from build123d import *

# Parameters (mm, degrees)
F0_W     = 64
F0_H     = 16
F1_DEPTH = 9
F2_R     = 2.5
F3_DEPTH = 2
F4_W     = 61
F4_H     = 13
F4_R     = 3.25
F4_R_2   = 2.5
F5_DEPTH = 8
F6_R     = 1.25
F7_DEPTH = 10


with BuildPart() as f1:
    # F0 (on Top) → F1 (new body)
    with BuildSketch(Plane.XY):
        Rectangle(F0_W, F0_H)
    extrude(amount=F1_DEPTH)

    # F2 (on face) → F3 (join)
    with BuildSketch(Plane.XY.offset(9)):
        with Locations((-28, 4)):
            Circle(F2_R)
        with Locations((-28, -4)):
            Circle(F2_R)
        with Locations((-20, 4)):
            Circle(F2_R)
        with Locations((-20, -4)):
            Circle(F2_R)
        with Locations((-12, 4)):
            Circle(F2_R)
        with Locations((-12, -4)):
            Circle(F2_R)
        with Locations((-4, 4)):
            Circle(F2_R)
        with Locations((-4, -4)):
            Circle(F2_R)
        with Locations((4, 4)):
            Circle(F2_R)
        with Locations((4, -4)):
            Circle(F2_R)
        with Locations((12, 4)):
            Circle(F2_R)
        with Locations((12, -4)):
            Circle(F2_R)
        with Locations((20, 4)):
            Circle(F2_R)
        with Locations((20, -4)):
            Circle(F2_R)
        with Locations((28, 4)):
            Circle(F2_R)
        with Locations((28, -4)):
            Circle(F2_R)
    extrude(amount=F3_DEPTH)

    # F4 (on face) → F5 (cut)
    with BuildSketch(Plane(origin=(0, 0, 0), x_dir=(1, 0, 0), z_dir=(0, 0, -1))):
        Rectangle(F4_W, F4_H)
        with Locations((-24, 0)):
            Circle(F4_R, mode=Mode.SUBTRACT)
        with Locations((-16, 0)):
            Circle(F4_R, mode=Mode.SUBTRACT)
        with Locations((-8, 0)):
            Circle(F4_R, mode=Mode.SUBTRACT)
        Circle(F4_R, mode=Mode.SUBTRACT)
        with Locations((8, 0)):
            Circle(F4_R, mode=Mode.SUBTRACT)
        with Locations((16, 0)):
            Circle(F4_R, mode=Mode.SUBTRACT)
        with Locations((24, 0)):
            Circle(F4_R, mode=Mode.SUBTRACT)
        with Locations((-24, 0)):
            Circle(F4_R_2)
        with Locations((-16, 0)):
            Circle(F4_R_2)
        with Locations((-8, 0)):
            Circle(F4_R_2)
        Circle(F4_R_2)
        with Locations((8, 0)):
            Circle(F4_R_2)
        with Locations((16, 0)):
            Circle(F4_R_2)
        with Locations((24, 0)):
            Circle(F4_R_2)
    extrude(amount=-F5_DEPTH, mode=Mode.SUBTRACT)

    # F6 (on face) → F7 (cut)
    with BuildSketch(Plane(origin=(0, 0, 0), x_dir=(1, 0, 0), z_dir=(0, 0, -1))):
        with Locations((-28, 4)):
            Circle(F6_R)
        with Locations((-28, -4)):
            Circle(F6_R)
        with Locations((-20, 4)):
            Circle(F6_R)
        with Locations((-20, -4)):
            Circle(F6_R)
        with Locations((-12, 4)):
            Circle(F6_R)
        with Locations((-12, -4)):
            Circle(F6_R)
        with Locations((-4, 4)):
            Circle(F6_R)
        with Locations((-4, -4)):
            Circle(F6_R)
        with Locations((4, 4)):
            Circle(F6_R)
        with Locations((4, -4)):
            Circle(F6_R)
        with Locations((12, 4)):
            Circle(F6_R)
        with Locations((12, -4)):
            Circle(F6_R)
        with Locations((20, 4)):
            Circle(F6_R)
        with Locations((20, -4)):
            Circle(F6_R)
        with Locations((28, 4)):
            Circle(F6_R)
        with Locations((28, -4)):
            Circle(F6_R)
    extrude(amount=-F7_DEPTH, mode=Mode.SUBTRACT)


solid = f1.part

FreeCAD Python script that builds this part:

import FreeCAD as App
import Part
import Sketcher

V = App.Vector
Q = App.Units.Quantity

doc = App.newDocument("Part")
body = doc.addObject("PartDesign::Body", "Body")

# Sketch on XY plane
sketch1 = body.newObject("Sketcher::SketchObject", "Sketch")
sketch1.AttachmentSupport = (doc.getObject("XY_Plane"), [""])
sketch1.MapMode = "FlatFace"
sketch1.addGeometry(Part.LineSegment(V(-32, 8, 0), V(-32, -8, 0)), False)
sketch1.addGeometry(Part.LineSegment(V(-32, -8, 0), V(32, -8, 0)), False)
sketch1.addGeometry(Part.LineSegment(V(32, -8, 0), V(32, 8, 0)), False)
sketch1.addGeometry(Part.LineSegment(V(32, 8, 0), V(-32, 8, 0)), False)
sketch1.addConstraint(Sketcher.Constraint("Coincident", 0, 2, 1, 1))
sketch1.addConstraint(Sketcher.Constraint("Coincident", 1, 2, 2, 1))
sketch1.addConstraint(Sketcher.Constraint("Coincident", 2, 2, 3, 1))
sketch1.addConstraint(Sketcher.Constraint("Coincident", 3, 2, 0, 1))
sketch1.addConstraint(Sketcher.Constraint("Vertical", 0))
sketch1.addConstraint(Sketcher.Constraint("Horizontal", 1))
sketch1.addConstraint(Sketcher.Constraint("Vertical", 2))
sketch1.addConstraint(Sketcher.Constraint("Horizontal", 3))
sketch1.addConstraint(Sketcher.Constraint("Symmetric", 0, 2, 2, 2, -1, 1))
sketch1.addConstraint(Sketcher.Constraint("DistanceX", 1, 1, 1, 2, Q("64 mm")))
sketch1.addConstraint(Sketcher.Constraint("DistanceY", 0, 2, 0, 1, Q("16 mm")))
pad1 = body.newObject("PartDesign::Pad", "Pad")
pad1.Profile = sketch1
pad1.Length = 9

# Sketch on XY plane
sketch2 = body.newObject("Sketcher::SketchObject", "Sketch001")
sketch2.AttachmentSupport = (doc.getObject("XY_Plane"), [""])
sketch2.MapMode = "FlatFace"
sketch2.AttachmentOffset = App.Placement(V(0, 0, 9), App.Rotation())
sketch2.addGeometry(Part.Circle(V(-28, 4, 0), V(0, 0, 1), 2.5), False)
sketch2.addGeometry(Part.Circle(V(-28, -4, 0), V(0, 0, 1), 2.5), False)
sketch2.addGeometry(Part.Circle(V(-20, 4, 0), V(0, 0, 1), 2.5), False)
sketch2.addGeometry(Part.Circle(V(-20, -4, 0), V(0, 0, 1), 2.5), False)
sketch2.addGeometry(Part.Circle(V(-12, 4, 0), V(0, 0, 1), 2.5), False)
sketch2.addGeometry(Part.Circle(V(-12, -4, 0), V(0, 0, 1), 2.5), False)
sketch2.addGeometry(Part.Circle(V(-4, 4, 0), V(0, 0, 1), 2.5), False)
sketch2.addGeometry(Part.Circle(V(-4, -4, 0), V(0, 0, 1), 2.5), False)
sketch2.addGeometry(Part.Circle(V(4, 4, 0), V(0, 0, 1), 2.5), False)
sketch2.addGeometry(Part.Circle(V(4, -4, 0), V(0, 0, 1), 2.5), False)
sketch2.addGeometry(Part.Circle(V(12, 4, 0), V(0, 0, 1), 2.5), False)
sketch2.addGeometry(Part.Circle(V(12, -4, 0), V(0, 0, 1), 2.5), False)
sketch2.addGeometry(Part.Circle(V(20, 4, 0), V(0, 0, 1), 2.5), False)
sketch2.addGeometry(Part.Circle(V(20, -4, 0), V(0, 0, 1), 2.5), False)
sketch2.addGeometry(Part.Circle(V(28, 4, 0), V(0, 0, 1), 2.5), False)
sketch2.addGeometry(Part.Circle(V(28, -4, 0), V(0, 0, 1), 2.5), False)
sketch2.addConstraint(Sketcher.Constraint("Equal", 0, 1))
sketch2.addConstraint(Sketcher.Constraint("Equal", 1, 2))
sketch2.addConstraint(Sketcher.Constraint("Equal", 2, 3))
sketch2.addConstraint(Sketcher.Constraint("Equal", 3, 4))
sketch2.addConstraint(Sketcher.Constraint("Equal", 4, 5))
sketch2.addConstraint(Sketcher.Constraint("Equal", 5, 6))
sketch2.addConstraint(Sketcher.Constraint("Equal", 6, 7))
sketch2.addConstraint(Sketcher.Constraint("Equal", 7, 8))
sketch2.addConstraint(Sketcher.Constraint("Equal", 8, 9))
sketch2.addConstraint(Sketcher.Constraint("Equal", 9, 10))
sketch2.addConstraint(Sketcher.Constraint("Equal", 10, 11))
sketch2.addConstraint(Sketcher.Constraint("Equal", 11, 12))
sketch2.addConstraint(Sketcher.Constraint("Equal", 12, 13))
sketch2.addConstraint(Sketcher.Constraint("Equal", 13, 14))
sketch2.addConstraint(Sketcher.Constraint("Equal", 14, 15))
sketch2.addConstraint(Sketcher.Constraint("Symmetric", 7, 3, 8, 3, -1, 1))
sketch2.addConstraint(Sketcher.Constraint("Symmetric", 6, 3, 9, 3, -1, 1))
sketch2.addConstraint(Sketcher.Constraint("Symmetric", 5, 3, 10, 3, -1, 1))
sketch2.addConstraint(Sketcher.Constraint("Symmetric", 4, 3, 11, 3, -1, 1))
sketch2.addConstraint(Sketcher.Constraint("Symmetric", 3, 3, 12, 3, -1, 1))
sketch2.addConstraint(Sketcher.Constraint("Symmetric", 2, 3, 13, 3, -1, 1))
sketch2.addConstraint(Sketcher.Constraint("Symmetric", 1, 3, 14, 3, -1, 1))
sketch2.addConstraint(Sketcher.Constraint("Symmetric", 0, 3, 15, 3, -1, 1))
sketch2.addConstraint(Sketcher.Constraint("Symmetric", 6, 3, 8, 3, -2))
sketch2.addConstraint(Sketcher.Constraint("Symmetric", 4, 3, 10, 3, -2))
sketch2.addConstraint(Sketcher.Constraint("Symmetric", 2, 3, 12, 3, -2))
sketch2.addConstraint(Sketcher.Constraint("Symmetric", 0, 3, 14, 3, -2))
sketch2.addConstraint(Sketcher.Constraint("Horizontal", 0, 3, 2, 3))
sketch2.addConstraint(Sketcher.Constraint("Horizontal", 2, 3, 4, 3))
sketch2.addConstraint(Sketcher.Constraint("Horizontal", 4, 3, 6, 3))
sketch2.addConstraint(Sketcher.Constraint("Diameter", 0, Q("5 mm")))
sketch2.addConstraint(Sketcher.Constraint("DistanceX", 0, 3, -1, 1, Q("28 mm")))
sketch2.addConstraint(Sketcher.Constraint("DistanceY", -1, 1, 0, 3, Q("4 mm")))
sketch2.addConstraint(Sketcher.Constraint("DistanceX", 2, 3, -1, 1, Q("20 mm")))
sketch2.addConstraint(Sketcher.Constraint("DistanceX", 4, 3, -1, 1, Q("12 mm")))
sketch2.addConstraint(Sketcher.Constraint("DistanceX", 6, 3, -1, 1, Q("4 mm")))
pad2 = body.newObject("PartDesign::Pad", "Pad001")
pad2.Profile = sketch2
pad2.Length = 2

# Sketch on XY plane
sketch3 = body.newObject("Sketcher::SketchObject", "Sketch002")
sketch3.AttachmentSupport = (doc.getObject("XY_Plane"), [""])
sketch3.MapMode = "FlatFace"
sketch3.addGeometry(Part.LineSegment(V(-30.5, -6.5, 0), V(-30.5, 6.5, 0)), False)
sketch3.addGeometry(Part.LineSegment(V(-30.5, 6.5, 0), V(30.5, 6.5, 0)), False)
sketch3.addGeometry(Part.LineSegment(V(30.5, 6.5, 0), V(30.5, -6.5, 0)), False)
sketch3.addGeometry(Part.LineSegment(V(30.5, -6.5, 0), V(-30.5, -6.5, 0)), False)
sketch3.addGeometry(Part.Circle(V(-24, 0, 0), V(0, 0, 1), 3.2), False)
sketch3.addGeometry(Part.Circle(V(-16, 0, 0), V(0, 0, 1), 3.2), False)
sketch3.addGeometry(Part.Circle(V(-8, 0, 0), V(0, 0, 1), 3.2), False)
sketch3.addGeometry(Part.Circle(V(0, 0, 0), V(0, 0, 1), 3.2), False)
sketch3.addGeometry(Part.Circle(V(8, 0, 0), V(0, 0, 1), 3.2), False)
sketch3.addGeometry(Part.Circle(V(16, 0, 0), V(0, 0, 1), 3.2), False)
sketch3.addGeometry(Part.Circle(V(24, 0, 0), V(0, 0, 1), 3.2), False)
sketch3.addGeometry(Part.Circle(V(-24, 0, 0), V(0, 0, 1), 2.5), False)
sketch3.addGeometry(Part.Circle(V(-16, 0, 0), V(0, 0, 1), 2.5), False)
sketch3.addGeometry(Part.Circle(V(-8, 0, 0), V(0, 0, 1), 2.5), False)
sketch3.addGeometry(Part.Circle(V(0, 0, 0), V(0, 0, 1), 2.5), False)
sketch3.addGeometry(Part.Circle(V(8, 0, 0), V(0, 0, 1), 2.5), False)
sketch3.addGeometry(Part.Circle(V(16, 0, 0), V(0, 0, 1), 2.5), False)
sketch3.addGeometry(Part.Circle(V(24, 0, 0), V(0, 0, 1), 2.5), False)
sketch3.addConstraint(Sketcher.Constraint("Coincident", 0, 2, 1, 1))
sketch3.addConstraint(Sketcher.Constraint("Coincident", 1, 2, 2, 1))
sketch3.addConstraint(Sketcher.Constraint("Coincident", 2, 2, 3, 1))
sketch3.addConstraint(Sketcher.Constraint("Coincident", 3, 2, 0, 1))
sketch3.addConstraint(Sketcher.Constraint("Vertical", 0))
sketch3.addConstraint(Sketcher.Constraint("Horizontal", 1))
sketch3.addConstraint(Sketcher.Constraint("Vertical", 2))
sketch3.addConstraint(Sketcher.Constraint("Horizontal", 3))
sketch3.addConstraint(Sketcher.Constraint("Coincident", 7, 3, -1, 1))
sketch3.addConstraint(Sketcher.Constraint("Coincident", 14, 3, -1, 1))
sketch3.addConstraint(Sketcher.Constraint("Coincident", 11, 3, 4, 3))
sketch3.addConstraint(Sketcher.Constraint("Coincident", 12, 3, 5, 3))
sketch3.addConstraint(Sketcher.Constraint("Coincident", 13, 3, 6, 3))
sketch3.addConstraint(Sketcher.Constraint("Coincident", 15, 3, 8, 3))
sketch3.addConstraint(Sketcher.Constraint("Coincident", 16, 3, 9, 3))
sketch3.addConstraint(Sketcher.Constraint("Coincident", 17, 3, 10, 3))
sketch3.addConstraint(Sketcher.Constraint("Equal", 4, 5))
sketch3.addConstraint(Sketcher.Constraint("Equal", 5, 6))
sketch3.addConstraint(Sketcher.Constraint("Equal", 6, 7))
sketch3.addConstraint(Sketcher.Constraint("Equal", 7, 8))
sketch3.addConstraint(Sketcher.Constraint("Equal", 8, 9))
sketch3.addConstraint(Sketcher.Constraint("Equal", 9, 10))
sketch3.addConstraint(Sketcher.Constraint("Equal", 11, 12))
sketch3.addConstraint(Sketcher.Constraint("Equal", 12, 13))
sketch3.addConstraint(Sketcher.Constraint("Equal", 13, 14))
sketch3.addConstraint(Sketcher.Constraint("Equal", 14, 15))
sketch3.addConstraint(Sketcher.Constraint("Equal", 15, 16))
sketch3.addConstraint(Sketcher.Constraint("Equal", 16, 17))
sketch3.addConstraint(Sketcher.Constraint("Symmetric", 6, 3, 8, 3, -1, 1))
sketch3.addConstraint(Sketcher.Constraint("Symmetric", 5, 3, 9, 3, -1, 1))
sketch3.addConstraint(Sketcher.Constraint("Symmetric", 4, 3, 10, 3, -1, 1))
sketch3.addConstraint(Sketcher.Constraint("Symmetric", 0, 2, 2, 2, -1, 1))
sketch3.addConstraint(Sketcher.Constraint("PointOnObject", 4, 3, -1))
sketch3.addConstraint(Sketcher.Constraint("PointOnObject", 5, 3, -1))
sketch3.addConstraint(Sketcher.Constraint("PointOnObject", 6, 3, -1))
sketch3.addConstraint(Sketcher.Constraint("Diameter", 11, Q("5 mm")))
sketch3.addConstraint(Sketcher.Constraint("Diameter", 4, Q("6.5 mm")))
sketch3.addConstraint(Sketcher.Constraint("DistanceX", 1, 1, 1, 2, Q("61 mm")))
sketch3.addConstraint(Sketcher.Constraint("DistanceY", 0, 1, 0, 2, Q("13 mm")))
sketch3.addConstraint(Sketcher.Constraint("DistanceX", 4, 3, -1, 1, Q("24 mm")))
sketch3.addConstraint(Sketcher.Constraint("DistanceX", 5, 3, -1, 1, Q("16 mm")))
sketch3.addConstraint(Sketcher.Constraint("DistanceX", 6, 3, -1, 1, Q("8 mm")))
pocket1 = body.newObject("PartDesign::Pocket", "Pocket")
pocket1.Profile = sketch3
pocket1.Length = 8
pocket1.Reversed = True

# Sketch on XY plane
sketch4 = body.newObject("Sketcher::SketchObject", "Sketch003")
sketch4.AttachmentSupport = (doc.getObject("XY_Plane"), [""])
sketch4.MapMode = "FlatFace"
sketch4.addGeometry(Part.Circle(V(-28, -4, 0), V(0, 0, 1), 1.2), False)
sketch4.addGeometry(Part.Circle(V(-28, 4, 0), V(0, 0, 1), 1.2), False)
sketch4.addGeometry(Part.Circle(V(-20, -4, 0), V(0, 0, 1), 1.2), False)
sketch4.addGeometry(Part.Circle(V(-20, 4, 0), V(0, 0, 1), 1.2), False)
sketch4.addGeometry(Part.Circle(V(-12, -4, 0), V(0, 0, 1), 1.2), False)
sketch4.addGeometry(Part.Circle(V(-12, 4, 0), V(0, 0, 1), 1.2), False)
sketch4.addGeometry(Part.Circle(V(-4, -4, 0), V(0, 0, 1), 1.2), False)
sketch4.addGeometry(Part.Circle(V(-4, 4, 0), V(0, 0, 1), 1.2), False)
sketch4.addGeometry(Part.Circle(V(4, -4, 0), V(0, 0, 1), 1.2), False)
sketch4.addGeometry(Part.Circle(V(4, 4, 0), V(0, 0, 1), 1.2), False)
sketch4.addGeometry(Part.Circle(V(12, -4, 0), V(0, 0, 1), 1.2), False)
sketch4.addGeometry(Part.Circle(V(12, 4, 0), V(0, 0, 1), 1.2), False)
sketch4.addGeometry(Part.Circle(V(20, -4, 0), V(0, 0, 1), 1.2), False)
sketch4.addGeometry(Part.Circle(V(20, 4, 0), V(0, 0, 1), 1.2), False)
sketch4.addGeometry(Part.Circle(V(28, -4, 0), V(0, 0, 1), 1.2), False)
sketch4.addGeometry(Part.Circle(V(28, 4, 0), V(0, 0, 1), 1.2), False)
sketch4.addConstraint(Sketcher.Constraint("Equal", 0, 1))
sketch4.addConstraint(Sketcher.Constraint("Equal", 1, 2))
sketch4.addConstraint(Sketcher.Constraint("Equal", 2, 3))
sketch4.addConstraint(Sketcher.Constraint("Equal", 3, 4))
sketch4.addConstraint(Sketcher.Constraint("Equal", 4, 5))
sketch4.addConstraint(Sketcher.Constraint("Equal", 5, 6))
sketch4.addConstraint(Sketcher.Constraint("Equal", 6, 7))
sketch4.addConstraint(Sketcher.Constraint("Equal", 7, 8))
sketch4.addConstraint(Sketcher.Constraint("Equal", 8, 9))
sketch4.addConstraint(Sketcher.Constraint("Equal", 9, 10))
sketch4.addConstraint(Sketcher.Constraint("Equal", 10, 11))
sketch4.addConstraint(Sketcher.Constraint("Equal", 11, 12))
sketch4.addConstraint(Sketcher.Constraint("Equal", 12, 13))
sketch4.addConstraint(Sketcher.Constraint("Equal", 13, 14))
sketch4.addConstraint(Sketcher.Constraint("Equal", 14, 15))
sketch4.addConstraint(Sketcher.Constraint("Symmetric", 7, 3, 8, 3, -1, 1))
sketch4.addConstraint(Sketcher.Constraint("Symmetric", 6, 3, 9, 3, -1, 1))
sketch4.addConstraint(Sketcher.Constraint("Symmetric", 5, 3, 10, 3, -1, 1))
sketch4.addConstraint(Sketcher.Constraint("Symmetric", 4, 3, 11, 3, -1, 1))
sketch4.addConstraint(Sketcher.Constraint("Symmetric", 3, 3, 12, 3, -1, 1))
sketch4.addConstraint(Sketcher.Constraint("Symmetric", 2, 3, 13, 3, -1, 1))
sketch4.addConstraint(Sketcher.Constraint("Symmetric", 1, 3, 14, 3, -1, 1))
sketch4.addConstraint(Sketcher.Constraint("Symmetric", 0, 3, 15, 3, -1, 1))
sketch4.addConstraint(Sketcher.Constraint("Symmetric", 6, 3, 8, 3, -2))
sketch4.addConstraint(Sketcher.Constraint("Symmetric", 4, 3, 10, 3, -2))
sketch4.addConstraint(Sketcher.Constraint("Symmetric", 2, 3, 12, 3, -2))
sketch4.addConstraint(Sketcher.Constraint("Symmetric", 0, 3, 14, 3, -2))
sketch4.addConstraint(Sketcher.Constraint("Horizontal", 0, 3, 2, 3))
sketch4.addConstraint(Sketcher.Constraint("Horizontal", 2, 3, 4, 3))
sketch4.addConstraint(Sketcher.Constraint("Horizontal", 4, 3, 6, 3))
sketch4.addConstraint(Sketcher.Constraint("Diameter", 0, Q("2.5 mm")))
sketch4.addConstraint(Sketcher.Constraint("DistanceX", 0, 3, -1, 1, Q("28 mm")))
sketch4.addConstraint(Sketcher.Constraint("DistanceY", 0, 3, -1, 1, Q("4 mm")))
sketch4.addConstraint(Sketcher.Constraint("DistanceX", 2, 3, -1, 1, Q("20 mm")))
sketch4.addConstraint(Sketcher.Constraint("DistanceX", 4, 3, -1, 1, Q("12 mm")))
sketch4.addConstraint(Sketcher.Constraint("DistanceX", 6, 3, -1, 1, Q("4 mm")))
pocket2 = body.newObject("PartDesign::Pocket", "Pocket001")
pocket2.Profile = sketch4
pocket2.Length = 10
pocket2.Reversed = True

doc.recompute()
